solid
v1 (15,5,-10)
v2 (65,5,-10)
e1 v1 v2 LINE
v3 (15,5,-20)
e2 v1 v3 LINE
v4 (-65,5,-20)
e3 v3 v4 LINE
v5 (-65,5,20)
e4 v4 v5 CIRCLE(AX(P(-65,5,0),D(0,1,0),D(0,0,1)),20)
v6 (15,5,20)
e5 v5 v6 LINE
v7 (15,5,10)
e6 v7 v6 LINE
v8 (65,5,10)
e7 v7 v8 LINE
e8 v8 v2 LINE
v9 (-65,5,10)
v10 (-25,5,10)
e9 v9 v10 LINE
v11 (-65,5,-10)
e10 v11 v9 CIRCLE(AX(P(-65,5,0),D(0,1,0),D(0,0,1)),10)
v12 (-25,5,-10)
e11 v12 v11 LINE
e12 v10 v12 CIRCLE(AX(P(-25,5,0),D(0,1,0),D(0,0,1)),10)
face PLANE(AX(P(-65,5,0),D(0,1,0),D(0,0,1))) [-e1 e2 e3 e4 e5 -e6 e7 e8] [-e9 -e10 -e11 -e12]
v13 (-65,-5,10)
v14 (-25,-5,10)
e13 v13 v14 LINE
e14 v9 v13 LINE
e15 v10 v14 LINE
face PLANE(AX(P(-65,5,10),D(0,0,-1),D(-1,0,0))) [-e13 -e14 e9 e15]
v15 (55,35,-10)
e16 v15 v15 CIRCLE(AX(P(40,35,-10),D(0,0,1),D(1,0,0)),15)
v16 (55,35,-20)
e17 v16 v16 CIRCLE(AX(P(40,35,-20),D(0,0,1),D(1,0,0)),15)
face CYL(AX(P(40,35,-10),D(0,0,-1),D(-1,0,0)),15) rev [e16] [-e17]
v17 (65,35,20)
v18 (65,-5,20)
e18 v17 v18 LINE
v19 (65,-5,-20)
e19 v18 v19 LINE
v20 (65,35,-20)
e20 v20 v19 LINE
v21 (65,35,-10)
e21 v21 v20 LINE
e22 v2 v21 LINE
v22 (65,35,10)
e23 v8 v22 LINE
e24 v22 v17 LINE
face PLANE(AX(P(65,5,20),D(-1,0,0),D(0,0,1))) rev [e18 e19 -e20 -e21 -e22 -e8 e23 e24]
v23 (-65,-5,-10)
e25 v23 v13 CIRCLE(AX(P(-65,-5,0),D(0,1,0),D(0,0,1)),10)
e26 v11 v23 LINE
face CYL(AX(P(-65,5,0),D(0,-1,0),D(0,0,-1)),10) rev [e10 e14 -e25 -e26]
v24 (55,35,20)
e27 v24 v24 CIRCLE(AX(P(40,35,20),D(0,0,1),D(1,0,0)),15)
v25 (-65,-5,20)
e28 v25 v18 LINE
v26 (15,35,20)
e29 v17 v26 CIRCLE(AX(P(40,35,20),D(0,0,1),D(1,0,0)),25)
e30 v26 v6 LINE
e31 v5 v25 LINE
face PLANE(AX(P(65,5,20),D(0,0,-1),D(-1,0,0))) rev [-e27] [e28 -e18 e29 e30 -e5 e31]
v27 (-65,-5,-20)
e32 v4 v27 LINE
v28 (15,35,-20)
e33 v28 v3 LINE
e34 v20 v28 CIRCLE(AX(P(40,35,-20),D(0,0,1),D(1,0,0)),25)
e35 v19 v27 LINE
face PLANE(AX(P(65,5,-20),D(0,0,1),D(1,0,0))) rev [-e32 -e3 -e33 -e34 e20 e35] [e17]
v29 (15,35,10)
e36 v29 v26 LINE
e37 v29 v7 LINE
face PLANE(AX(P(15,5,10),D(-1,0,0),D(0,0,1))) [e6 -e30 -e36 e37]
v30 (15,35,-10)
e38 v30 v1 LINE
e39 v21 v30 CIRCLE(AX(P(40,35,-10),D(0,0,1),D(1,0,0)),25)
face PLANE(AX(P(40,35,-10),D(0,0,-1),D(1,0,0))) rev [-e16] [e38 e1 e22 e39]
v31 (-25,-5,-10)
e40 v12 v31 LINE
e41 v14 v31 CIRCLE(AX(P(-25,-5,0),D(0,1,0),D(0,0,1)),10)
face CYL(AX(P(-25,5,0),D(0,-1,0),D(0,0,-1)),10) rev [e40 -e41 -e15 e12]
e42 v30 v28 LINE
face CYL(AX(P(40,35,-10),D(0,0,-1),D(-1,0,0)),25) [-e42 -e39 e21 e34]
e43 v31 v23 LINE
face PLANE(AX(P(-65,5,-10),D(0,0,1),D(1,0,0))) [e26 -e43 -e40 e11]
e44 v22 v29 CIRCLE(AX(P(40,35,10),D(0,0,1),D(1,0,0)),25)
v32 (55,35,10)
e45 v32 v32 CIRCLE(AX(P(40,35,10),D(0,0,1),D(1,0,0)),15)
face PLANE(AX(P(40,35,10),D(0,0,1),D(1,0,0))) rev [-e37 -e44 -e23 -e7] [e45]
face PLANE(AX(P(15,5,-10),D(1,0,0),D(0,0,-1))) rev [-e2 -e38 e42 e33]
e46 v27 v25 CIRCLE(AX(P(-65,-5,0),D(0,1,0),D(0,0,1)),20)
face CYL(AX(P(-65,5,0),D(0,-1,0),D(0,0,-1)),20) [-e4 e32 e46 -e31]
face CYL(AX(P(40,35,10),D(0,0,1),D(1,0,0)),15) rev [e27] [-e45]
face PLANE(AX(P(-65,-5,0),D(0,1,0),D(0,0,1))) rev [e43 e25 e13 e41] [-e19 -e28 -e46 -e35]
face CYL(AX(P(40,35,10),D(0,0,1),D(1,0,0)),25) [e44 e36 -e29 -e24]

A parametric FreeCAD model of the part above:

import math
import FreeCAD as App
import Part
import Sketcher

V = App.Vector
Q = App.Units.Quantity

doc = App.newDocument("Part")
body = doc.addObject("PartDesign::Body", "Body")

sketch1 = body.newObject("Sketcher::SketchObject", "Sketch")
sketch1.AttachmentSupport = (doc.getObject("XZ_Plane"), [""])
sketch1.MapMode = "FlatFace"
sketch1.addGeometry([
    Part.LineSegment(V(-65, 20, 0), V(65, 20, 0)),
    Part.LineSegment(V(65, 20, 0), V(65, -20, 0)),
    Part.LineSegment(V(65, -20, 0), V(-65, -20, 0)),
    Part.ArcOfCircle(Part.Circle(V(-65, 0, 0), V(0, 0, 1), 20), math.radians(90), math.radians(270)),
    Part.LineSegment(V(-65, -10, 0), V(-25, -10, 0)),
    Part.ArcOfCircle(Part.Circle(V(-25, 0, 0), V(0, 0, 1), 10), math.radians(-90), math.radians(90)),
    Part.LineSegment(V(-25, 10, 0), V(-65, 10, 0)),
    Part.ArcOfCircle(Part.Circle(V(-65, 0, 0), V(0, 0, 1), 10), math.radians(90), math.radians(270)),
], False)
sketch1.addConstraint([
    Sketcher.Constraint("Coincident", 0, 2, 1, 1),
    Sketcher.Constraint("Coincident", 1, 2, 2, 1),
    Sketcher.Constraint("Tangent", 2, 2, 3, 2),
    Sketcher.Constraint("Tangent", 3, 1, 0, 1),
    Sketcher.Constraint("Tangent", 4, 2, 5, 1),
    Sketcher.Constraint("Tangent", 5, 2, 6, 1),
    Sketcher.Constraint("Tangent", 6, 2, 7, 1),
    Sketcher.Constraint("Tangent", 7, 2, 4, 1),
    Sketcher.Constraint("Horizontal", 0),
    Sketcher.Constraint("Vertical", 1),
    Sketcher.Constraint("Horizontal", 2),
    Sketcher.Constraint("Horizontal", 4),
    Sketcher.Constraint("Horizontal", 6),
    Sketcher.Constraint("Coincident", 7, 3, 3, 3),
    Sketcher.Constraint("Symmetric", 0, 2, 2, 2, -1, 1),
    Sketcher.Constraint("Equal", 6, 1),
    Sketcher.Constraint("Radius", 3, Q("20 mm")),
    Sketcher.Constraint("Radius", 5, Q("10 mm")),
    Sketcher.Constraint("DistanceX", 0, 1, 0, 2, Q("130 mm")),
])
pad1 = body.newObject("PartDesign::Pad", "Pad")
pad1.Profile = sketch1
pad1.Length = 10
pad1.Midplane = True

sketch2 = body.newObject("Sketcher::SketchObject", "Sketch001")
sketch2.AttachmentSupport = (doc.getObject("XY_Plane"), [""])
sketch2.MapMode = "FlatFace"
sketch2.AttachmentOffset = App.Placement(V(0, 0, 20), App.Rotation())
sketch2.addGeometry([
    Part.LineSegment(V(15, 5, 0), V(65, 5, 0)),
    Part.LineSegment(V(65, 5, 0), V(65, 35, 0)),
    Part.ArcOfCircle(Part.Circle(V(40, 35, 0), V(0, 0, 1), 25), math.radians(0), math.radians(180)),
    Part.LineSegment(V(15, 35, 0), V(15, 5, 0)),
    Part.Circle(V(40, 35, 0), V(0, 0, 1), 15),
], False)
sketch2.addConstraint([
    Sketcher.Constraint("Coincident", 0, 2, 1, 1),
    Sketcher.Constraint("Tangent", 1, 2, 2, 1),
    Sketcher.Constraint("Tangent", 2, 2, 3, 1),
    Sketcher.Constraint("Coincident", 3, 2, 0, 1),
    Sketcher.Constraint("Horizontal", 0),
    Sketcher.Constraint("Vertical", 1),
    Sketcher.Constraint("Vertical", 3),
    Sketcher.Constraint("Coincident", 4, 3, 2, 3),
    Sketcher.Constraint("Diameter", 4, Q("30 mm")),
    Sketcher.Constraint("Radius", 2, Q("25 mm")),
    Sketcher.Constraint("DistanceY", 1, 1, 1, 2, Q("30 mm")),
    Sketcher.Constraint("DistanceX", -1, 1, 2, 3, Q("40 mm")),
    Sketcher.Constraint("DistanceY", -1, 1, 2, 3, Q("35 mm")),
])
pad2 = body.newObject("PartDesign::Pad", "Pad001")
pad2.Profile = sketch2
pad2.Length = 10
pad2.Reversed = True
doc.recompute()

mirrored = body.newObject("PartDesign::Mirrored", "Mirrored")
mirrored.Originals = [pad2]
mirrored.MirrorPlane = (doc.getObject("XY_Plane"), [""])
body.Tip = mirrored

doc.recompute()
